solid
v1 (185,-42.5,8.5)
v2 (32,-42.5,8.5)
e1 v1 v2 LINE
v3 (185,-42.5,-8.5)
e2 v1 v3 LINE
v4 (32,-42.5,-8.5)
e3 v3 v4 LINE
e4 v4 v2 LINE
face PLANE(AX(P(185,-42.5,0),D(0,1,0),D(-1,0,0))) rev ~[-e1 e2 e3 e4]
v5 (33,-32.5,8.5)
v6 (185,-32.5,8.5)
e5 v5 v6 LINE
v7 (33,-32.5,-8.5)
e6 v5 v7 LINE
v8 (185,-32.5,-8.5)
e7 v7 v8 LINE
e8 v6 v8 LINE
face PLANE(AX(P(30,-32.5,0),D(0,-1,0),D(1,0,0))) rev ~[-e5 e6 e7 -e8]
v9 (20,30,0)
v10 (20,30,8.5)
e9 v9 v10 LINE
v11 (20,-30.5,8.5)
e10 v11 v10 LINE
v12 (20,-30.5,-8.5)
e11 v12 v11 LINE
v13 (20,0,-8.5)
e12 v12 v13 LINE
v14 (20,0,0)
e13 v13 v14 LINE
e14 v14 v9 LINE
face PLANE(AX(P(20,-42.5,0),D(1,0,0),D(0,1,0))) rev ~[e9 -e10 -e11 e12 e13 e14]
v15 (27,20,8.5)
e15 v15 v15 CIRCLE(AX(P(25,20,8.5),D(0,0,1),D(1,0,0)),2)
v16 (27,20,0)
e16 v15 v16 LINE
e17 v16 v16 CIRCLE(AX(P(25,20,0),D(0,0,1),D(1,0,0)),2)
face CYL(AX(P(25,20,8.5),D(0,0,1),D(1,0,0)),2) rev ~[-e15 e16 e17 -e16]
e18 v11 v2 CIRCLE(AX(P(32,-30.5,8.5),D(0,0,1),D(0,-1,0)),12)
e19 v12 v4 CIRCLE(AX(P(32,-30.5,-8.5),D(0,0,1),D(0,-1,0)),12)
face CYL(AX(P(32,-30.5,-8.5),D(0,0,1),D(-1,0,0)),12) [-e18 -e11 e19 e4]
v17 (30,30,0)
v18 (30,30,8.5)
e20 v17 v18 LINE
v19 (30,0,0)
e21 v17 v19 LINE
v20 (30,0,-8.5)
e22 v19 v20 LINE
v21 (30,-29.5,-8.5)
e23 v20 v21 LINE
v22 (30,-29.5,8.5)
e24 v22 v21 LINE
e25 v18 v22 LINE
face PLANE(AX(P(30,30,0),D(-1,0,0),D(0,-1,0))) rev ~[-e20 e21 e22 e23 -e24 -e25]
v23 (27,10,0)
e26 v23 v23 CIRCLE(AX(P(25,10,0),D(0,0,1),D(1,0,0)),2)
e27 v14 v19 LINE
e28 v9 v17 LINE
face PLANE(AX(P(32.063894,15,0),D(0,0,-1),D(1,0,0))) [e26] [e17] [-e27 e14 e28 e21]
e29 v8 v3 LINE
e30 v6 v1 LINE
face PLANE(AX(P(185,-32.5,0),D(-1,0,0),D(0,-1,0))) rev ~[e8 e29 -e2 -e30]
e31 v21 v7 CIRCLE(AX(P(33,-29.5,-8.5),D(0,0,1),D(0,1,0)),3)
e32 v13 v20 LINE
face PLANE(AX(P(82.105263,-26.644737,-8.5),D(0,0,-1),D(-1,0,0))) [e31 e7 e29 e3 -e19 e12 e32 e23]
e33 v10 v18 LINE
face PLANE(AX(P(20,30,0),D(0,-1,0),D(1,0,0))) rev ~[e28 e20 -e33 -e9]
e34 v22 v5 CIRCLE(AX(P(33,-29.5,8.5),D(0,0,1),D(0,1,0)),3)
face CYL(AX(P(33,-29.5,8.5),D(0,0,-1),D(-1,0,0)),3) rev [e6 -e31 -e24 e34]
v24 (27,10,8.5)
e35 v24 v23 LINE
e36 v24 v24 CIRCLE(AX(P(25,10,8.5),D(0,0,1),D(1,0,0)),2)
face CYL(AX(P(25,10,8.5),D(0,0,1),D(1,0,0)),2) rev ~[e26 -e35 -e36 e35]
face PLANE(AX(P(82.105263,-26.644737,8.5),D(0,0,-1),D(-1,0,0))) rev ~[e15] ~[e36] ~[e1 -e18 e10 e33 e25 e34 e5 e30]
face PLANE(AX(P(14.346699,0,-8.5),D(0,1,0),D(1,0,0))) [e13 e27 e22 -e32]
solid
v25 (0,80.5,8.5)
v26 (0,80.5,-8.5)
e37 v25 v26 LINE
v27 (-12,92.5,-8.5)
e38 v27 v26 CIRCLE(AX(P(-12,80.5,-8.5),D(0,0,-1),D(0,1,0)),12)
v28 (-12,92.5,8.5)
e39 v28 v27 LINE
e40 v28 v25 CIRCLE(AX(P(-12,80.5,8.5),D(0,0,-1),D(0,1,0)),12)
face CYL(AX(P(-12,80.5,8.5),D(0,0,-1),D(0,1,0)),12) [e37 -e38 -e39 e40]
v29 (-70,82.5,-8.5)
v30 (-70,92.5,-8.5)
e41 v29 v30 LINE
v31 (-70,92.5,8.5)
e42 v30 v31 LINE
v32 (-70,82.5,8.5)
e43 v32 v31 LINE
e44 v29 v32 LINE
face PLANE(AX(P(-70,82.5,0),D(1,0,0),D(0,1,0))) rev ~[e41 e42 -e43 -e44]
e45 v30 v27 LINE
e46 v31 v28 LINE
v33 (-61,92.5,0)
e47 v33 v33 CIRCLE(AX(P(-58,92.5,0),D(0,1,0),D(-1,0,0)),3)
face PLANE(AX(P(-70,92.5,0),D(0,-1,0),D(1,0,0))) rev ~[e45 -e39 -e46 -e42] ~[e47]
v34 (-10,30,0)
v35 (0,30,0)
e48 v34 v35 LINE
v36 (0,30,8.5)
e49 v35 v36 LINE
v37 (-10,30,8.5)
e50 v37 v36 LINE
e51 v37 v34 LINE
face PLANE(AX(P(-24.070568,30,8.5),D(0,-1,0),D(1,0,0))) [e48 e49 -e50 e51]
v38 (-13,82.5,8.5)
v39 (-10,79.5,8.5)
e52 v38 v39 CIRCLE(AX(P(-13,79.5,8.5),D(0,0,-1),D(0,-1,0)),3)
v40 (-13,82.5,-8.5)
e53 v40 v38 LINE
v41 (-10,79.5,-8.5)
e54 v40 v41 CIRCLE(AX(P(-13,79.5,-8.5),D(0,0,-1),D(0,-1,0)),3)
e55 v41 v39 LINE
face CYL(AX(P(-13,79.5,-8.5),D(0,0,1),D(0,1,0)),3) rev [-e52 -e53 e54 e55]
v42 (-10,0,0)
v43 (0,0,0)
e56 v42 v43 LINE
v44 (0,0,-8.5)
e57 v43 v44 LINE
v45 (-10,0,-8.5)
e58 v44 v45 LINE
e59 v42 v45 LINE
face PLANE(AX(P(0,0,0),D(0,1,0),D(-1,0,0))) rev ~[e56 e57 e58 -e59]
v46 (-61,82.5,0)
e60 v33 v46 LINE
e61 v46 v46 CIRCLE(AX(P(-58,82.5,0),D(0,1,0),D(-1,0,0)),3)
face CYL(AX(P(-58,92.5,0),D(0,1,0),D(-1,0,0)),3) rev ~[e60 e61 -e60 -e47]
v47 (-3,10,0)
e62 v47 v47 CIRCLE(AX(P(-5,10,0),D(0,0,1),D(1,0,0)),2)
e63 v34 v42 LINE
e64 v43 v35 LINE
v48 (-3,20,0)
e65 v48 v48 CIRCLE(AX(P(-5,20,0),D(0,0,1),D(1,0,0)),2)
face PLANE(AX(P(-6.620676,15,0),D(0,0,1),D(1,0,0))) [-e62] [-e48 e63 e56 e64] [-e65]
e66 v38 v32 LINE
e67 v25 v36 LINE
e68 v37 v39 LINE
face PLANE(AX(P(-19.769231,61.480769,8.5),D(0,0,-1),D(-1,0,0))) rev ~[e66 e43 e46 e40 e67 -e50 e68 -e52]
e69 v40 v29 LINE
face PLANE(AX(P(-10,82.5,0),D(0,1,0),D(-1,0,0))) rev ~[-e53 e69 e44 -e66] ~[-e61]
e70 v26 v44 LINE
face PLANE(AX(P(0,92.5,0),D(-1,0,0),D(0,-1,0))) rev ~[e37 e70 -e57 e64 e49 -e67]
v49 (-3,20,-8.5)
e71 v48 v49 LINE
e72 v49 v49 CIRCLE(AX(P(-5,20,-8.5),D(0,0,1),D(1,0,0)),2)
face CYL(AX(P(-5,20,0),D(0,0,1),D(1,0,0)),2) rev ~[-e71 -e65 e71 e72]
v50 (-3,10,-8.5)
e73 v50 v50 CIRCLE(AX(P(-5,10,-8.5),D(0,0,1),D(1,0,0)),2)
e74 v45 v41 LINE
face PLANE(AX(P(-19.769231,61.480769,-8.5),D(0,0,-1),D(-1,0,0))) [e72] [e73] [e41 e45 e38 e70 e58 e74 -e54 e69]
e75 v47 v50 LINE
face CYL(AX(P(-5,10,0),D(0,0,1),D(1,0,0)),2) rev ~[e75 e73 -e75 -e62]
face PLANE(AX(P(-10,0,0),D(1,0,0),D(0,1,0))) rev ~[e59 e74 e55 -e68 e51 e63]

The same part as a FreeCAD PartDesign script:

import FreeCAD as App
import Part
import Sketcher
from FreeCAD import Vector
Q = App.Units.Quantity


def edges_at(feature, points):
    """Names of the edges that pass closest to the given points."""
    edges = feature.Shape.Edges
    near = lambda p: min(range(len(edges)), key=lambda i: edges[i].distToShape(Part.Vertex(*p))[0])
    return sorted({f"Edge{near(p) + 1}" for p in points})


def add_polygon(sketch, points):
    """Adds a closed chain of lines whose ends are joined by coincident constraints."""
    first, n = sketch.GeometryCount, len(points)
    for a, b in zip(points, points[1:] + points[:1]):
        sketch.addGeometry(Part.LineSegment(App.Vector(*a, 0), App.Vector(*b, 0)), False)
    for i in range(n):
        sketch.addConstraint(Sketcher.Constraint("Coincident", first + i, 2, first + (i + 1) % n, 1))

doc = App.newDocument("Part")
params = doc.addObject("Spreadsheet::Sheet", "Params")
for row, (alias, value) in enumerate([
    ("sketch1_width", "70 mm"),
    ("sketch1_width2", "60 mm"),
    ("sketch1_height", "82.5 mm"),
    ("pad1_length", "17 mm"),
    ("sketch2_height", "30 mm"),
    ("pocket1_length", "8.5 mm"),
    ("sketch3_diameter", "4 mm"),
    ("sketch4_diameter", "6 mm"),
    ("fillet_radius", "12 mm"),
    ("fillet2_radius", "3 mm"),
    ("sketch5_width", "10 mm"),
    ("sketch5_width2", "165 mm"),
    ("sketch5_height", "62.5 mm"),
    ("pad2_length", "17 mm"),
    ("sketch6_height", "30 mm"),
    ("pocket4_length", "8.5 mm"),
    ("sketch7_diameter", "4 mm"),
    ("fillet3_radius", "12 mm"),
    ("fillet4_radius", "3 mm"),
], start=1):
    params.set(f"A{row}", alias)
    params.set(f"B{row}", "=" + value)
    params.setAlias(f"B{row}", alias)

body = doc.addObject("PartDesign::Body", "Body")

# Sketch on XY plane
sketch1 = doc.addObject("Sketcher::SketchObject", "Sketch")
body.addObject(sketch1)
sketch1.AttachmentSupport = (doc.XY_Plane, [""])
sketch1.MapMode = "FlatFace"
add_polygon(sketch1, [(0, 92), (-70, 92), (-70, 82), (-10, 82), (-10, 0), (0, 0)])  # lines 0-5
sketch1.addConstraint(Sketcher.Constraint("Horizontal", 0))
sketch1.addConstraint(Sketcher.Constraint("Vertical", 1))
sketch1.addConstraint(Sketcher.Constraint("Horizontal", 2))
sketch1.addConstraint(Sketcher.Constraint("Vertical", 3))
sketch1.addConstraint(Sketcher.Constraint("Horizontal", 4))
sketch1.addConstraint(Sketcher.Constraint("Vertical", 5))
sketch1.addConstraint(Sketcher.Constraint("Coincident", 4, 2, -1, 1))
sketch1.addConstraint(Sketcher.Constraint("Equal", 4, 1))
sketch1.addConstraint(Sketcher.Constraint("DistanceX", 0, 2, 0, 1, Q("70 mm")))
sketch1.addConstraint(Sketcher.Constraint("DistanceX", 2, 1, 2, 2, Q("60 mm")))
sketch1.addConstraint(Sketcher.Constraint("DistanceY", 3, 2, 3, 1, Q("82.5 mm")))
sketch1.setExpression("Constraints[14]", "Params.sketch1_width")
sketch1.setExpression("Constraints[15]", "Params.sketch1_width2")
sketch1.setExpression("Constraints[16]", "Params.sketch1_height")
pad1 = doc.addObject("PartDesign::Pad", "Pad")
body.addObject(pad1)
pad1.Profile = sketch1
pad1.setExpression("Length", "Params.pad1_length")
pad1.Midplane = True

# Sketch on XY plane
sketch2 = doc.addObject("Sketcher::SketchObject", "Sketch001")
body.addObject(sketch2)
sketch2.AttachmentSupport = (doc.XY_Plane, [""])
sketch2.MapMode = "FlatFace"
sketch2.AttachmentOffset = App.Placement(Vector(0, 0, 8.5), App.Rotation())
add_polygon(sketch2, [(-24, 30), (-24, 0), (11, 0), (11, 30)])  # lines 0-3
sketch2.addConstraint(Sketcher.Constraint("Vertical", 0))
sketch2.addConstraint(Sketcher.Constraint("Horizontal", 1))
sketch2.addConstraint(Sketcher.Constraint("Vertical", 2))
sketch2.addConstraint(Sketcher.Constraint("Horizontal", 3))
sketch2.addConstraint(Sketcher.Constraint("PointOnObject", 0, 2, -1))
sketch2.addConstraint(Sketcher.Constraint("DistanceY", 0, 2, 0, 1, Q("30 mm")))
sketch2.addConstraint(Sketcher.Constraint("DistanceX", 1, 1, 1, 2, Q("34.899784 mm")))
sketch2.addConstraint(Sketcher.Constraint("DistanceX", 0, 2, -1, 1, Q("24.070568 mm")))
sketch2.setExpression("Constraints[9]", "Params.sketch2_height")
pocket1 = doc.addObject("PartDesign::Pocket", "Pocket")
body.addObject(pocket1)
pocket1.Profile = sketch2
pocket1.setExpression("Length", "Params.pocket1_length")

# Sketch on XY plane
sketch3 = doc.addObject("Sketcher::SketchObject", "Sketch002")
body.addObject(sketch3)
sketch3.AttachmentSupport = (doc.XY_Plane, [""])
sketch3.MapMode = "FlatFace"
sketch3.addGeometry(Part.Circle(Vector(-5, 10, 0), Vector(0, 0, 1), 2), False)
sketch3.addGeometry(Part.Circle(Vector(-5, 20, 0), Vector(0, 0, 1), 2), False)
sketch3.addConstraint(Sketcher.Constraint("Equal", 0, 1))
sketch3.addConstraint(Sketcher.Constraint("Vertical", 0, 3, 1, 3))
sketch3.addConstraint(Sketcher.Constraint("Diameter", 0, Q("4 mm")))
sketch3.addConstraint(Sketcher.Constraint("DistanceX", 0, 3, -1, 1, Q("5 mm")))
sketch3.addConstraint(Sketcher.Constraint("DistanceY", -1, 1, 0, 3, Q("10 mm")))
sketch3.addConstraint(Sketcher.Constraint("DistanceY", -1, 1, 1, 3, Q("20 mm")))
sketch3.setExpression("Constraints[2]", "Params.sketch3_diameter")
pocket2 = doc.addObject("PartDesign::Pocket", "Pocket001")
body.addObject(pocket2)
pocket2.Profile = sketch3
pocket2.Type = "ThroughAll"

# Sketch on XZ plane
sketch4 = doc.addObject("Sketcher::SketchObject", "Sketch003")
body.addObject(sketch4)
sketch4.AttachmentSupport = (doc.XZ_Plane, [""])
sketch4.MapMode = "FlatFace"
sketch4.AttachmentOffset = App.Placement(Vector(0, 0, -92.5), App.Rotation())
sketch4.addGeometry(Part.Circle(Vector(-58, 0, 0), Vector(0, 0, 1), 3), False)
sketch4.addConstraint(Sketcher.Constraint("PointOnObject", 0, 3, -1))
sketch4.addConstraint(Sketcher.Constraint("Diameter", 0, Q("6 mm")))
sketch4.addConstraint(Sketcher.Constraint("DistanceX", 0, 3, -1, 1, Q("58 mm")))
sketch4.setExpression("Constraints[1]", "Params.sketch4_diameter")
pocket3 = doc.addObject("PartDesign::Pocket", "Pocket002")
body.addObject(pocket3)
pocket3.Profile = sketch4
pocket3.Type = "ThroughAll"
pocket3.Reversed = True
doc.recompute()

fillet = doc.addObject("PartDesign::Fillet", "Fillet")
body.addObject(fillet)
fillet.Base = (pocket3, edges_at(pocket3, [(0, 92.5, 0)]))
fillet.setExpression("Radius", "Params.fillet_radius")
doc.recompute()

fillet2 = doc.addObject("PartDesign::Fillet", "Fillet001")
body.addObject(fillet2)
fillet2.Base = (fillet, edges_at(fillet, [(-10, 82.5, 0)]))
fillet2.setExpression("Radius", "Params.fillet2_radius")
body2 = doc.addObject("PartDesign::Body", "Body001")

# Sketch on XY plane
sketch5 = doc.addObject("Sketcher::SketchObject", "Sketch004")
body2.addObject(sketch5)
sketch5.AttachmentSupport = (doc.getObject("XY_Plane001"), [""])
sketch5.MapMode = "FlatFace"
add_polygon(sketch5, [(30, -32), (30, 30), (20, 30), (20, -42), (185, -42), (185, -32)])  # lines 0-5
sketch5.addConstraint(Sketcher.Constraint("Vertical", 0))
sketch5.addConstraint(Sketcher.Constraint("Horizontal", 1))
sketch5.addConstraint(Sketcher.Constraint("Vertical", 2))
sketch5.addConstraint(Sketcher.Constraint("Horizontal", 3))
sketch5.addConstraint(Sketcher.Constraint("Vertical", 4))
sketch5.addConstraint(Sketcher.Constraint("Horizontal", 5))
sketch5.addConstraint(Sketcher.Constraint("Equal", 1, 4))
sketch5.addConstraint(Sketcher.Constraint("DistanceX", 1, 2, 1, 1, Q("10 mm")))
sketch5.addConstraint(Sketcher.Constraint("DistanceX", 3, 1, 3, 2, Q("165 mm")))
sketch5.addConstraint(Sketcher.Constraint("DistanceY", 0, 1, 0, 2, Q("62.5 mm")))
sketch5.addConstraint(Sketcher.Constraint("DistanceX", -1, 1, 0, 2, Q("30 mm")))
sketch5.addConstraint(Sketcher.Constraint("DistanceY", -1, 1, 0, 2, Q("30 mm")))
sketch5.setExpression("Constraints[13]", "Params.sketch5_width")
sketch5.setExpression("Constraints[14]", "Params.sketch5_width2")
sketch5.setExpression("Constraints[15]", "Params.sketch5_height")
pad2 = doc.addObject("PartDesign::Pad", "Pad001")
body2.addObject(pad2)
pad2.Profile = sketch5
pad2.setExpression("Length", "Params.pad2_length")
pad2.Midplane = True

# Sketch on XY plane
sketch6 = doc.addObject("Sketcher::SketchObject", "Sketch005")
body2.addObject(sketch6)
sketch6.AttachmentSupport = (doc.getObject("XY_Plane001"), [""])
sketch6.MapMode = "FlatFace"
sketch6.AttachmentOffset = App.Placement(Vector(0, 0, -8.5), App.Rotation())
add_polygon(sketch6, [(14, 0), (14, 30), (50, 30), (50, 0)])  # lines 0-3
sketch6.addConstraint(Sketcher.Constraint("Vertical", 0))
sketch6.addConstraint(Sketcher.Constraint("Horizontal", 1))
sketch6.addConstraint(Sketcher.Constraint("Vertical", 2))
sketch6.addConstraint(Sketcher.Constraint("Horizontal", 3))
sketch6.addConstraint(Sketcher.Constraint("PointOnObject", 2, 2, -1))
sketch6.addConstraint(Sketcher.Constraint("DistanceY", 0, 1, 0, 2, Q("30 mm")))
sketch6.addConstraint(Sketcher.Constraint("DistanceX", 1, 1, 1, 2, Q("35.43439 mm")))
sketch6.addConstraint(Sketcher.Constraint("DistanceX", -1, 1, 0, 2, Q("14.346699 mm")))
sketch6.setExpression("Constraints[9]", "Params.sketch6_height")
pocket4 = doc.addObject("PartDesign::Pocket", "Pocket003")
body2.addObject(pocket4)
pocket4.Profile = sketch6
pocket4.setExpression("Length", "Params.pocket4_length")
pocket4.Reversed = True

# Sketch on XY plane
sketch7 = doc.addObject("Sketcher::SketchObject", "Sketch006")
body2.addObject(sketch7)
sketch7.AttachmentSupport = (doc.getObject("XY_Plane001"), [""])
sketch7.MapMode = "FlatFace"
sketch7.AttachmentOffset = App.Placement(Vector(0, 0, 8.5), App.Rotation())
sketch7.addGeometry(Part.Circle(Vector(25, 20, 0), Vector(0, 0, 1), 2), False)
sketch7.addGeometry(Part.Circle(Vector(25, 10, 0), Vector(0, 0, 1), 2), False)
sketch7.addConstraint(Sketcher.Constraint("Equal", 0, 1))
sketch7.addConstraint(Sketcher.Constraint("Vertical", 0, 3, 1, 3))
sketch7.addConstraint(Sketcher.Constraint("Diameter", 0, Q("4 mm")))
sketch7.addConstraint(Sketcher.Constraint("DistanceX", -1, 1, 0, 3, Q("25 mm")))
sketch7.addConstraint(Sketcher.Constraint("DistanceY", -1, 1, 0, 3, Q("20 mm")))
sketch7.addConstraint(Sketcher.Constraint("DistanceY", -1, 1, 1, 3, Q("10 mm")))
sketch7.setExpression("Constraints[2]", "Params.sketch7_diameter")
pocket5 = doc.addObject("PartDesign::Pocket", "Pocket004")
body2.addObject(pocket5)
pocket5.Profile = sketch7
pocket5.Type = "ThroughAll"
doc.recompute()

fillet3 = doc.addObject("PartDesign::Fillet", "Fillet002")
body2.addObject(fillet3)
fillet3.Base = (pocket5, edges_at(pocket5, [(20, -42.5, 0)]))
fillet3.setExpression("Radius", "Params.fillet3_radius")
doc.recompute()

fillet4 = doc.addObject("PartDesign::Fillet", "Fillet003")
body2.addObject(fillet4)
fillet4.Base = (fillet3, edges_at(fillet3, [(30, -32.5, 0)]))
fillet4.setExpression("Radius", "Params.fillet4_radius")

doc.recompute()
